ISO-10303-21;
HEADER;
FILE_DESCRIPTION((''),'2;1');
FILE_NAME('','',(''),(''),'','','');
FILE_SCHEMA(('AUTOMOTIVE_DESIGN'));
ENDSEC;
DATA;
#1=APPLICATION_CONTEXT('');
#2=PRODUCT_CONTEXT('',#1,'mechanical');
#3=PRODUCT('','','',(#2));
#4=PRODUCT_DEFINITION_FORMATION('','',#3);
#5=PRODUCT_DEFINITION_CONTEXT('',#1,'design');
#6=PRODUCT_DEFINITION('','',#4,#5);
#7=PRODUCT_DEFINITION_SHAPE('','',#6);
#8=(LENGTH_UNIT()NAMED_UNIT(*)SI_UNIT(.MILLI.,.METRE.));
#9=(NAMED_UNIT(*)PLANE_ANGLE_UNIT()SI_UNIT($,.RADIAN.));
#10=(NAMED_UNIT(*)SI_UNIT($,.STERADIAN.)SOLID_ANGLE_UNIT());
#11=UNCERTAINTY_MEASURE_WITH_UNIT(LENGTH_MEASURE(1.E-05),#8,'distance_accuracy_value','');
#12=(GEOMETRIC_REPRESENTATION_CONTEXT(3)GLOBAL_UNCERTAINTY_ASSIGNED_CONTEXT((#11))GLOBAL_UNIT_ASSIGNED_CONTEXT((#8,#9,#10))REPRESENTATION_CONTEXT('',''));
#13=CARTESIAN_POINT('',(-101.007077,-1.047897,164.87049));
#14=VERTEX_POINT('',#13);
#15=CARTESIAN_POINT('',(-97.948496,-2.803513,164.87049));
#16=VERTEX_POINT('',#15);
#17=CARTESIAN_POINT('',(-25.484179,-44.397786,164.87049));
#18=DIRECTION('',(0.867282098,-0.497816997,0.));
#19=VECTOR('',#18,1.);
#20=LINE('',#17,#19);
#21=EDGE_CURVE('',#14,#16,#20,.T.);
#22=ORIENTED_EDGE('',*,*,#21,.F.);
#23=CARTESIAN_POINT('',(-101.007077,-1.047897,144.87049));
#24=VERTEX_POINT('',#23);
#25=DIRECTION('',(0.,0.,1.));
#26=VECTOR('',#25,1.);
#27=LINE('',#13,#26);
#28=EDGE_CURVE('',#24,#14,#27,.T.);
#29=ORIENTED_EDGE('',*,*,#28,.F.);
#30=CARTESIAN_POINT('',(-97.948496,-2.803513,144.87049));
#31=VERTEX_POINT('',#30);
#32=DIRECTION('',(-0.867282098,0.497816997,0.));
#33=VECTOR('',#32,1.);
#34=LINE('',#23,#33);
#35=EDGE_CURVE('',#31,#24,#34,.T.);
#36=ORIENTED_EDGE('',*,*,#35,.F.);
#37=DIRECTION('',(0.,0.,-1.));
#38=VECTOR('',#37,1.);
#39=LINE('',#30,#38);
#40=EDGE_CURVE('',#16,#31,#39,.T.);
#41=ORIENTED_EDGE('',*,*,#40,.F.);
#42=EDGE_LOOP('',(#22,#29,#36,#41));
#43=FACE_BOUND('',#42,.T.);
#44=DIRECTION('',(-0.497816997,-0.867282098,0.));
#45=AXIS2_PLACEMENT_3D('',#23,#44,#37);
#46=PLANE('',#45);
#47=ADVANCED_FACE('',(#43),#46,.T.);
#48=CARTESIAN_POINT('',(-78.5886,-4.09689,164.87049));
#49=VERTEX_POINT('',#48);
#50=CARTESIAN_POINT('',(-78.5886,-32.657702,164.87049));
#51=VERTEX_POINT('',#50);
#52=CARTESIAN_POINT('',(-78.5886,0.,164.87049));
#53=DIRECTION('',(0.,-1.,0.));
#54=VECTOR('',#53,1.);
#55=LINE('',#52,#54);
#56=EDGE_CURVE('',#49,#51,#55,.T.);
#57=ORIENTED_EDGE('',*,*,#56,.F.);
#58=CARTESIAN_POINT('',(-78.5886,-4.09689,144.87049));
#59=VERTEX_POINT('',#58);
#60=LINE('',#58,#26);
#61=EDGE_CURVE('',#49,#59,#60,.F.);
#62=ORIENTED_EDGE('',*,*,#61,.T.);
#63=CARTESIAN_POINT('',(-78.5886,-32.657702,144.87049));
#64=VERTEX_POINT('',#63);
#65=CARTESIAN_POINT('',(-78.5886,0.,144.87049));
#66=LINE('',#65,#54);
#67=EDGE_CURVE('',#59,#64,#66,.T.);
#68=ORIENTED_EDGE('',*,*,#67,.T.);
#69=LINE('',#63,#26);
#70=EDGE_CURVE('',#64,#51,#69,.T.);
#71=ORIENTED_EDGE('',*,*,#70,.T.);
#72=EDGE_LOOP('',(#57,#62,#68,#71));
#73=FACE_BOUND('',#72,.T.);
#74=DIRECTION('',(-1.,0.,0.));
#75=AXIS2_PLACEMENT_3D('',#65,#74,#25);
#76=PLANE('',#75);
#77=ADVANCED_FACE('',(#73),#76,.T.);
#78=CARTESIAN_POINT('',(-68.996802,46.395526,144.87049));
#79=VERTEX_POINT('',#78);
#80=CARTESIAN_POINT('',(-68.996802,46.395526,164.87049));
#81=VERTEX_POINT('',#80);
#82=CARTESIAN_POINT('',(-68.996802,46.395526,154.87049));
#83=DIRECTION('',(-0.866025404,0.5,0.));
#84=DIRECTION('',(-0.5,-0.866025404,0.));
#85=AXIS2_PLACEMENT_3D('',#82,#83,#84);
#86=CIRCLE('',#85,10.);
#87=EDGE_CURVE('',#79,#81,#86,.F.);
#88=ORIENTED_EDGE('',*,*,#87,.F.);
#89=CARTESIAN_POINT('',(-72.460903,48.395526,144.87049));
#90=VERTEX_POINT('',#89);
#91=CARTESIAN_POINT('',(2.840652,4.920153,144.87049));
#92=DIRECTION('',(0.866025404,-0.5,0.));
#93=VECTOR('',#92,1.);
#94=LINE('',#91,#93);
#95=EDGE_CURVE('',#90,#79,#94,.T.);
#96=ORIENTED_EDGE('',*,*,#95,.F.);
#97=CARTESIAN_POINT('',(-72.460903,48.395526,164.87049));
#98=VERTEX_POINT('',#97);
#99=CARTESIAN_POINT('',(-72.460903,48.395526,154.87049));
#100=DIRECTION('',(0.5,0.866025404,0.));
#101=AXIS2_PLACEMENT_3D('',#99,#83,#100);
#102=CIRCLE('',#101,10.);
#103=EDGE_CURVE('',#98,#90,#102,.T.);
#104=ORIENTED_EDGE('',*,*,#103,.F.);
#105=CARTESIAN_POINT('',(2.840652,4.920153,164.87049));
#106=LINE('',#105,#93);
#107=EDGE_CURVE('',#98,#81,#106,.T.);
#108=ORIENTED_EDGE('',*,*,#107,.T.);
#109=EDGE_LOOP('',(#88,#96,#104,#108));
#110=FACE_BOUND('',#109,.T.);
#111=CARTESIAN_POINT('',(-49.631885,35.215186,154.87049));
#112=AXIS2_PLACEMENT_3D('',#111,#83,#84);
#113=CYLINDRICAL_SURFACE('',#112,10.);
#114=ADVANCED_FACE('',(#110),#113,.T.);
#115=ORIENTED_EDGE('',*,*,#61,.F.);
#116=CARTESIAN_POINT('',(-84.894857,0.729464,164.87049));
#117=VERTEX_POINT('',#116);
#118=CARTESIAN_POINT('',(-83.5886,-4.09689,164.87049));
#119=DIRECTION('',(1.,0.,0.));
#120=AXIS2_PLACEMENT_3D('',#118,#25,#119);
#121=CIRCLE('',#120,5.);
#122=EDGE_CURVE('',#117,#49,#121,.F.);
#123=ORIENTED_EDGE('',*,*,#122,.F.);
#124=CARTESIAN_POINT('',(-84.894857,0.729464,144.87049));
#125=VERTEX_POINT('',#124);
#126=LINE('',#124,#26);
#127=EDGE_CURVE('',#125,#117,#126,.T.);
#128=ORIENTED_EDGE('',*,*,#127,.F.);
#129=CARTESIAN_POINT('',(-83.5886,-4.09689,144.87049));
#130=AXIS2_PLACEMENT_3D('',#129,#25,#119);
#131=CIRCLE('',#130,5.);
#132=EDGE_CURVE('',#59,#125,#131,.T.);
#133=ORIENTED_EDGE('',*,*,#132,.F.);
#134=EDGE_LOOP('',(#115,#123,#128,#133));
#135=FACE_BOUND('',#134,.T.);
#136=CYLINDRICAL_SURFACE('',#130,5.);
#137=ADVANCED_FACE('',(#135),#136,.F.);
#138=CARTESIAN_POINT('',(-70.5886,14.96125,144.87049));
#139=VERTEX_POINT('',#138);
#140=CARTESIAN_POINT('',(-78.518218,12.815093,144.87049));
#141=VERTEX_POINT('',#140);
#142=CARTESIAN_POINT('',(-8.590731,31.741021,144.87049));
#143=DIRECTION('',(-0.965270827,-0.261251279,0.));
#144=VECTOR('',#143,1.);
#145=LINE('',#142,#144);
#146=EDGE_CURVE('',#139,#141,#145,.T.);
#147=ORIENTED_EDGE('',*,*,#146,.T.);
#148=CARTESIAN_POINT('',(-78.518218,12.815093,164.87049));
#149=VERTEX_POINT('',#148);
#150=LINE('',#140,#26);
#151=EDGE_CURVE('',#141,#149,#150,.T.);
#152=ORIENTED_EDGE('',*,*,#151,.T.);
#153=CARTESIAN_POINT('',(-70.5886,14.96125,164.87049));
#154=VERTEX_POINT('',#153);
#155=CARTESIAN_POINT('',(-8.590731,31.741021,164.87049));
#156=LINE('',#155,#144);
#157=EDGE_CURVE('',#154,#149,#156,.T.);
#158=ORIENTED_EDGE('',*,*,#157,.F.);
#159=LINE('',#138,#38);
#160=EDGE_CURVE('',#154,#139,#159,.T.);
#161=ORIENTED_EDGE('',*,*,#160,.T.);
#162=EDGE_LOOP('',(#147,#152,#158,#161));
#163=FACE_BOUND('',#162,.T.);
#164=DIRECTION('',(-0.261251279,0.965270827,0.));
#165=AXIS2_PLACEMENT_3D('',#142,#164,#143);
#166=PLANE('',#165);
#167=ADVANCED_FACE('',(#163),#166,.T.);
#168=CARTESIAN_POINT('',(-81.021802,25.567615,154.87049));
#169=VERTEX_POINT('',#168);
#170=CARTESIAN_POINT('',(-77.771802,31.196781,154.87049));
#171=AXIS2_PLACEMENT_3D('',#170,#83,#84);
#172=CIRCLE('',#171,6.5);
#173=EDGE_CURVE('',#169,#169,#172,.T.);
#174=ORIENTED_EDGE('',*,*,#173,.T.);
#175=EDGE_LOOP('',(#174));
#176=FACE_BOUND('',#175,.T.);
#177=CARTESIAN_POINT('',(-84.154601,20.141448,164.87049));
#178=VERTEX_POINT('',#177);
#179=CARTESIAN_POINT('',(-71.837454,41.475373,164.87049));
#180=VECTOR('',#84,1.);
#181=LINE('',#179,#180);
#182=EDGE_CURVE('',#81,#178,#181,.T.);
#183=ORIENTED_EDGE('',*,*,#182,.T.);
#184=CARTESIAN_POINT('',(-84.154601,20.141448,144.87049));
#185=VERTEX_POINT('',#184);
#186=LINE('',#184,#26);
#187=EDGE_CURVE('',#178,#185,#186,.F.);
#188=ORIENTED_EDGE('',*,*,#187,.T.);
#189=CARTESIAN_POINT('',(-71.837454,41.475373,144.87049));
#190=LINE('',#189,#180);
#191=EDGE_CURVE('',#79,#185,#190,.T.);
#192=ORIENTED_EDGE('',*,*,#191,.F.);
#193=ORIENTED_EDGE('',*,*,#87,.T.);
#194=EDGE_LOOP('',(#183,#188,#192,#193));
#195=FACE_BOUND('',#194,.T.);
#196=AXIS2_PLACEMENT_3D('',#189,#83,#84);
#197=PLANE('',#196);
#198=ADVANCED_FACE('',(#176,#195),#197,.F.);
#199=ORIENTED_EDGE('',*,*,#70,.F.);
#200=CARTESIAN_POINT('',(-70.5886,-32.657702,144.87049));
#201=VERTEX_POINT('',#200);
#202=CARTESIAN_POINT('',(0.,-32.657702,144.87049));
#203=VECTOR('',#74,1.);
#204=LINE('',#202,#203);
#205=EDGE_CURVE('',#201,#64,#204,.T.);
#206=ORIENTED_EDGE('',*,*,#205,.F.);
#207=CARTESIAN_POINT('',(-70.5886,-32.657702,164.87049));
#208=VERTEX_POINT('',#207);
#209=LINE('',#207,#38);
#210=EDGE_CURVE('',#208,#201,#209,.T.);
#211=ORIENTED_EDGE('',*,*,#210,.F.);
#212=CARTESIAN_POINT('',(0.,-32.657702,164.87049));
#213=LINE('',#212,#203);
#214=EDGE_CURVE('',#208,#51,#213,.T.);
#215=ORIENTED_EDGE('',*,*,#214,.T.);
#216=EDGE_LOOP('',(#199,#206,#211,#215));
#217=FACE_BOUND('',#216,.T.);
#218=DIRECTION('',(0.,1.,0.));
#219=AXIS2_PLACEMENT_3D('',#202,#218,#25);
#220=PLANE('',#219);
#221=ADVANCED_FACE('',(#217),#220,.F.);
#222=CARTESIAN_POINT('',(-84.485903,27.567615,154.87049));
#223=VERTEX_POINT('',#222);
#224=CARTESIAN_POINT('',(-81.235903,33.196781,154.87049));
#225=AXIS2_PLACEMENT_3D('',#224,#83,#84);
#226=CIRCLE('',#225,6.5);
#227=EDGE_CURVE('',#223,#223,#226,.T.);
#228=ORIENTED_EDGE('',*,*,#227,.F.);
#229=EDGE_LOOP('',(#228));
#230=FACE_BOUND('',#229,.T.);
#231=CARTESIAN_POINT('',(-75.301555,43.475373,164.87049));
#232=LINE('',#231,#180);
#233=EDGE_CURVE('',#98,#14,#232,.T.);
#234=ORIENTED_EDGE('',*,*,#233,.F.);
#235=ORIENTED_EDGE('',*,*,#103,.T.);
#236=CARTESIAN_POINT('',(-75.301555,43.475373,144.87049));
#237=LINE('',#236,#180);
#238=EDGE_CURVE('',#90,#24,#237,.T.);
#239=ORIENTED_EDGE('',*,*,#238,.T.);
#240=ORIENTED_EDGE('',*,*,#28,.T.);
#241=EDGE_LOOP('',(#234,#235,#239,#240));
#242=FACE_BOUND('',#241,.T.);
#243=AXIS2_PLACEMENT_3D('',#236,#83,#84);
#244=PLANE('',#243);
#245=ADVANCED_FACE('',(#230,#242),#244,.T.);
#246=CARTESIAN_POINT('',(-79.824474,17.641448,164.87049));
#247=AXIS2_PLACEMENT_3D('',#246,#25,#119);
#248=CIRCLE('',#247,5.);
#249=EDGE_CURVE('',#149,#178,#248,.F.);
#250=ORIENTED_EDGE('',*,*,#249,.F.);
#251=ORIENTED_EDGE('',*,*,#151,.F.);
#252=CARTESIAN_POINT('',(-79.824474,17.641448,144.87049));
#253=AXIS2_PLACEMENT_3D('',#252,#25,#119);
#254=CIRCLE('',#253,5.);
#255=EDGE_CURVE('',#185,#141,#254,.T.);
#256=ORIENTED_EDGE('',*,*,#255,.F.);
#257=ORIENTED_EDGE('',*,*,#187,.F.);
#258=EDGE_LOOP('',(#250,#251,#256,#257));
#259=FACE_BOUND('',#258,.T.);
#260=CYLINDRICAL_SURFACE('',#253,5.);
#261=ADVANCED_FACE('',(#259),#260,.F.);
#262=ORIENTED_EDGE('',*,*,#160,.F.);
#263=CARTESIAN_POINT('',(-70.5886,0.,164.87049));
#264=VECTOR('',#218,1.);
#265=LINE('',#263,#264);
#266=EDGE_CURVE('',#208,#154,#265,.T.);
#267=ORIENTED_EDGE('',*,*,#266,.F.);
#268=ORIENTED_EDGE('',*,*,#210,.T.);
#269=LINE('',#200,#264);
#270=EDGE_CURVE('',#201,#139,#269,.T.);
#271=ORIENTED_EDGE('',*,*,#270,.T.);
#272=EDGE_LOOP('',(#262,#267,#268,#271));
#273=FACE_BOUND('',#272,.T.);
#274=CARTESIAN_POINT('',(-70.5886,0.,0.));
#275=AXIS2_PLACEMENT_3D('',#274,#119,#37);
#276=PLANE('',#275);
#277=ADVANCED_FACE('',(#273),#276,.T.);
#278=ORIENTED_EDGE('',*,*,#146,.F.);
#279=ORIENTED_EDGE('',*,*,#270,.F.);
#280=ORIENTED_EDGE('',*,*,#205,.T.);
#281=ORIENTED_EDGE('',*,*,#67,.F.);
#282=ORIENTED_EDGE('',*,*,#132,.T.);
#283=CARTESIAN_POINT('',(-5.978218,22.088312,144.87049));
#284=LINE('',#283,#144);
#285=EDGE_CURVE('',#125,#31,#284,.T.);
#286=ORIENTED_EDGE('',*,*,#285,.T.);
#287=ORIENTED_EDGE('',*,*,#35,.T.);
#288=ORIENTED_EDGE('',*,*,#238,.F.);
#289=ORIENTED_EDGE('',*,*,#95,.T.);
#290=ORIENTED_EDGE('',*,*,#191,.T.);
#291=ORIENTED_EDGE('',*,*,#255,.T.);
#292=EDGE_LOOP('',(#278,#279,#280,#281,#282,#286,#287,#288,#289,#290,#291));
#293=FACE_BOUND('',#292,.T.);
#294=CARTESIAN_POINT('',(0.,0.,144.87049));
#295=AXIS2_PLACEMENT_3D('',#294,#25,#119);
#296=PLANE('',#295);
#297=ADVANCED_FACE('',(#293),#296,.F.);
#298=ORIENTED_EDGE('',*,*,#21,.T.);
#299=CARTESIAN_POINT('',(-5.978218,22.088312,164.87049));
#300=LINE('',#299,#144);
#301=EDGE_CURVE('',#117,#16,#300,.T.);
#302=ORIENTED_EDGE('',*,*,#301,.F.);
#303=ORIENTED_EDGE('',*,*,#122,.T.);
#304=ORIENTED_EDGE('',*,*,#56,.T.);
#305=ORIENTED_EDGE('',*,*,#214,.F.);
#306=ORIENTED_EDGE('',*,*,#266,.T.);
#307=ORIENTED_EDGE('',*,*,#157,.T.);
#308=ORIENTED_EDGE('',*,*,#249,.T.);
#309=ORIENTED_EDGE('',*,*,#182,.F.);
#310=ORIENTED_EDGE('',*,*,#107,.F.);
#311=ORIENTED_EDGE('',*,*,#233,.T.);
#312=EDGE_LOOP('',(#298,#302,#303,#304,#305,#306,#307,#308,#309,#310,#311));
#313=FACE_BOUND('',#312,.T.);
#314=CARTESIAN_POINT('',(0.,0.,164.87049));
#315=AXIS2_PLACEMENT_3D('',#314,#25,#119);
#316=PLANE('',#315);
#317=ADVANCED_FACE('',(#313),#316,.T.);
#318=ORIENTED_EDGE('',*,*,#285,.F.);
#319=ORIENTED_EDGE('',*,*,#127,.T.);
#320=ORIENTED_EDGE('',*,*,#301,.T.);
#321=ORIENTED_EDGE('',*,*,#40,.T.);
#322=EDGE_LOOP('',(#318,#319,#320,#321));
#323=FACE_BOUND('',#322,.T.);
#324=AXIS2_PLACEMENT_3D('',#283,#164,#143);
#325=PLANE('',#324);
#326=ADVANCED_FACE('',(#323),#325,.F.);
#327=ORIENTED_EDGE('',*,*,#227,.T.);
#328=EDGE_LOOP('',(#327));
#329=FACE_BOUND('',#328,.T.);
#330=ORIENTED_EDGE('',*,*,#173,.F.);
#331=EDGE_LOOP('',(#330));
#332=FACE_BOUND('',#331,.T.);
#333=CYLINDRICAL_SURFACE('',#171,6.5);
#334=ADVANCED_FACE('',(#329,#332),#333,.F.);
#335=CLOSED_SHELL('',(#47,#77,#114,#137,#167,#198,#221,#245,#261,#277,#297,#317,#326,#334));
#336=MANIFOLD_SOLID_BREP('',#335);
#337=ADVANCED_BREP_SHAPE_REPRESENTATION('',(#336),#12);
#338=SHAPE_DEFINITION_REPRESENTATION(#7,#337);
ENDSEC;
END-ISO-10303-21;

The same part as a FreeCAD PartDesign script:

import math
import FreeCAD as App
import Part
import Sketcher

V = App.Vector
Q = App.Units.Quantity


def edges_at(feature, points):
    """Names of the edges that pass closest to the given points."""
    edges = feature.Shape.Edges
    near = lambda p: min(range(len(edges)), key=lambda i: edges[i].distToShape(Part.Vertex(*p))[0])
    return sorted({f"Edge{near(p) + 1}" for p in points})

doc = App.newDocument("Part")
body = doc.addObject("PartDesign::Body", "Body")

# Sketch on XY plane
sketch1 = body.newObject("Sketcher::SketchObject", "Sketch")
sketch1.AttachmentSupport = (doc.getObject("XY_Plane"), [""])
sketch1.MapMode = "FlatFace"
sketch1.AttachmentOffset = App.Placement(V(0, 0, 164.87049), App.Rotation())
sketch1.addGeometry([
    Part.LineSegment(V(-68.5886, 15.502552, 0), V(-78.5886, 12.796044, 0)),  # 0
    Part.LineSegment(V(-78.5886, 12.796044, 0), V(-90.211701, 9.650243, 0)),  # 1
    Part.LineSegment(V(-90.211701, 9.650243, 0), V(-68.996802, 46.395526, 0)),  # 2
    Part.LineSegment(V(-68.996802, 46.395526, 0), V(-72.460903, 48.395526, 0)),  # 3
    Part.LineSegment(V(-72.460903, 48.395526, 0), V(-102.77485, -4.109769, 0)),  # 4
    Part.LineSegment(V(-102.77485, -4.109769, 0), V(-78.5886, 2.436258, 0)),  # 5
    Part.LineSegment(V(-78.5886, 2.436258, 0), V(-78.5886, -32.657702, 0)),  # 6
    Part.LineSegment(V(-78.5886, -32.657702, 0), V(-68.5886, -32.657702, 0)),  # 7
    Part.LineSegment(V(-68.5886, -32.657702, 0), V(-68.5886, 15.502552, 0)),  # 8
], False)
sketch1.addConstraint([
    Sketcher.Constraint("Coincident", 0, 2, 1, 1),
    Sketcher.Constraint("Coincident", 1, 2, 2, 1),
    Sketcher.Constraint("Coincident", 2, 2, 3, 1),
    Sketcher.Constraint("Coincident", 3, 2, 4, 1),
    Sketcher.Constraint("Coincident", 4, 2, 5, 1),
    Sketcher.Constraint("Coincident", 5, 2, 6, 1),
    Sketcher.Constraint("Coincident", 6, 2, 7, 1),
    Sketcher.Constraint("Coincident", 7, 2, 8, 1),
    Sketcher.Constraint("Coincident", 8, 2, 0, 1),
    Sketcher.Constraint("Vertical", 6),
    Sketcher.Constraint("Horizontal", 7),
    Sketcher.Constraint("Vertical", 8),
    Sketcher.Constraint("Parallel", 0, 1),
    Sketcher.Constraint("Perpendicular", 2, 3),
    Sketcher.Constraint("Perpendicular", 3, 4),
    Sketcher.Constraint("Parallel", 1, 5),
    Sketcher.Constraint("Vertical", 0, 2, 5, 2),
    Sketcher.Constraint("DistanceX", 7, 1, 7, 2, Q("10 mm")),
    Sketcher.Constraint("Angle", 2, Q("60 deg")),
    Sketcher.Constraint("Distance", 3, Q("4 mm")),
    Sketcher.Constraint("DistanceY", 6, 2, 6, 1, Q("35.09396 mm")),
    Sketcher.Constraint("DistanceX", 0, 2, -1, 1, Q("78.5886 mm")),
    Sketcher.Constraint("DistanceX", 1, 2, -1, 1, Q("90.211701 mm")),
    Sketcher.Constraint("DistanceX", 2, 2, -1, 1, Q("68.996802 mm")),
    Sketcher.Constraint("DistanceY", 1, 2, 0, 2, Q("3.145801 mm")),
    Sketcher.Constraint("Distance", 5, Q("25.056439 mm")),
    Sketcher.Constraint("DistanceY", 4, 2, -1, 1, Q("4.109769 mm")),
])
pad1 = body.newObject("PartDesign::Pad", "Pad")
pad1.Profile = sketch1
pad1.Length = 20
pad1.Reversed = True
doc.recompute()

fillet = body.newObject("PartDesign::Fillet", "Fillet")
fillet.Base = (pad1, edges_at(pad1, [(-90.212, 9.65, 154.87), (-78.589, 2.436, 154.87)]))
fillet.Radius = 5
doc.recompute()

chamfer = body.newObject("PartDesign::Chamfer", "Chamfer")
chamfer.Base = (fillet, edges_at(fillet, [(-102.775, -4.11, 154.87)]))
chamfer.ChamferType = "Two distances"
chamfer.Size = 3.535545
chamfer.Size2 = 5

# Sketch on an angled plane
sketch2 = body.newObject("Sketcher::SketchObject", "Sketch001")
sketch2.Placement = App.Placement(V(-75.301555, 43.475373, 0), App.Rotation(V(0, 0, 1), V(0.5, 0.866025404, 0), V(-0.866025404, 0.5, 0), "ZXY"))
sketch2.addGeometry([
    Part.LineSegment(V(144.87049, 5.681304, 0), V(164.87049, 5.681304, 0)),
    Part.ArcOfCircle(Part.Circle(V(154.87049, 5.681304, 0), V(0, 0, 1), 10), math.radians(0), math.radians(180)),
], False)
sketch2.addConstraint([
    Sketcher.Constraint("Coincident", 0, 1, 1, 2),
    Sketcher.Constraint("Coincident", 1, 1, 0, 2),
    Sketcher.Constraint("Horizontal", 0),
    Sketcher.Constraint("Horizontal", 1, 3, 0, 1),
    Sketcher.Constraint("Radius", 1, Q("10 mm")),
    Sketcher.Constraint("DistanceX", -1, 1, 1, 3, Q("154.87049 mm")),
    Sketcher.Constraint("DistanceY", -1, 1, 1, 3, Q("5.681304 mm")),
])
pad2 = body.newObject("PartDesign::Pad", "Pad001")
pad2.Profile = sketch2
pad2.Length = 4
pad2.Reversed = True

# Sketch on YZ plane
sketch3 = body.newObject("Sketcher::SketchObject", "Sketch002")
sketch3.AttachmentSupport = (doc.getObject("YZ_Plane"), [""])
sketch3.MapMode = "FlatFace"
sketch3.AttachmentOffset = App.Placement(V(0, 0, -68.5886), App.Rotation())
sketch3.addGeometry([
    Part.LineSegment(V(15.502552, 164.87049, 0), V(-32.657702, 164.87049, 0)),
    Part.LineSegment(V(-32.657702, 164.87049, 0), V(-32.657702, 144.87049, 0)),
    Part.LineSegment(V(-32.657702, 144.87049, 0), V(15.502552, 144.87049, 0)),
    Part.LineSegment(V(15.502552, 144.87049, 0), V(15.502552, 164.87049, 0)),
], False)
sketch3.addConstraint([
    Sketcher.Constraint("Coincident", 0, 2, 1, 1),
    Sketcher.Constraint("Coincident", 1, 2, 2, 1),
    Sketcher.Constraint("Coincident", 2, 2, 3, 1),
    Sketcher.Constraint("Coincident", 3, 2, 0, 1),
    Sketcher.Constraint("Horizontal", 0),
    Sketcher.Constraint("Vertical", 1),
    Sketcher.Constraint("Horizontal", 2),
    Sketcher.Constraint("Vertical", 3),
    Sketcher.Constraint("DistanceY", 1, 2, 1, 1, Q("20 mm")),
    Sketcher.Constraint("DistanceX", 0, 2, 0, 1, Q("48.160254 mm")),
    Sketcher.Constraint("DistanceY", -1, 1, 0, 2, Q("164.87049 mm")),
    Sketcher.Constraint("DistanceX", -1, 1, 2, 2, Q("15.502552 mm")),
])
pocket1 = body.newObject("PartDesign::Pocket", "Pocket")
pocket1.Profile = sketch3
pocket1.Length = 2

# Sketch on an angled plane
sketch4 = body.newObject("Sketcher::SketchObject", "Sketch003")
sketch4.Placement = App.Placement(V(-75.301555, 43.475373, 0), App.Rotation(V(0, 0, 1), V(0.5, 0.866025404, 0), V(-0.866025404, 0.5, 0), "ZXY"))
sketch4.addGeometry(Part.Circle(V(154.87049, -11.868696, 0), V(0, 0, 1), 6.5), False)
sketch4.addConstraint([
    Sketcher.Constraint("Diameter", 0, Q("13 mm")),
    Sketcher.Constraint("DistanceX", -1, 1, 0, 3, Q("154.87049 mm")),
    Sketcher.Constraint("DistanceY", 0, 3, -1, 1, Q("11.868696 mm")),
])
pocket2 = body.newObject("PartDesign::Pocket", "Pocket001")
pocket2.Profile = sketch4
pocket2.Length = 4

doc.recompute()
